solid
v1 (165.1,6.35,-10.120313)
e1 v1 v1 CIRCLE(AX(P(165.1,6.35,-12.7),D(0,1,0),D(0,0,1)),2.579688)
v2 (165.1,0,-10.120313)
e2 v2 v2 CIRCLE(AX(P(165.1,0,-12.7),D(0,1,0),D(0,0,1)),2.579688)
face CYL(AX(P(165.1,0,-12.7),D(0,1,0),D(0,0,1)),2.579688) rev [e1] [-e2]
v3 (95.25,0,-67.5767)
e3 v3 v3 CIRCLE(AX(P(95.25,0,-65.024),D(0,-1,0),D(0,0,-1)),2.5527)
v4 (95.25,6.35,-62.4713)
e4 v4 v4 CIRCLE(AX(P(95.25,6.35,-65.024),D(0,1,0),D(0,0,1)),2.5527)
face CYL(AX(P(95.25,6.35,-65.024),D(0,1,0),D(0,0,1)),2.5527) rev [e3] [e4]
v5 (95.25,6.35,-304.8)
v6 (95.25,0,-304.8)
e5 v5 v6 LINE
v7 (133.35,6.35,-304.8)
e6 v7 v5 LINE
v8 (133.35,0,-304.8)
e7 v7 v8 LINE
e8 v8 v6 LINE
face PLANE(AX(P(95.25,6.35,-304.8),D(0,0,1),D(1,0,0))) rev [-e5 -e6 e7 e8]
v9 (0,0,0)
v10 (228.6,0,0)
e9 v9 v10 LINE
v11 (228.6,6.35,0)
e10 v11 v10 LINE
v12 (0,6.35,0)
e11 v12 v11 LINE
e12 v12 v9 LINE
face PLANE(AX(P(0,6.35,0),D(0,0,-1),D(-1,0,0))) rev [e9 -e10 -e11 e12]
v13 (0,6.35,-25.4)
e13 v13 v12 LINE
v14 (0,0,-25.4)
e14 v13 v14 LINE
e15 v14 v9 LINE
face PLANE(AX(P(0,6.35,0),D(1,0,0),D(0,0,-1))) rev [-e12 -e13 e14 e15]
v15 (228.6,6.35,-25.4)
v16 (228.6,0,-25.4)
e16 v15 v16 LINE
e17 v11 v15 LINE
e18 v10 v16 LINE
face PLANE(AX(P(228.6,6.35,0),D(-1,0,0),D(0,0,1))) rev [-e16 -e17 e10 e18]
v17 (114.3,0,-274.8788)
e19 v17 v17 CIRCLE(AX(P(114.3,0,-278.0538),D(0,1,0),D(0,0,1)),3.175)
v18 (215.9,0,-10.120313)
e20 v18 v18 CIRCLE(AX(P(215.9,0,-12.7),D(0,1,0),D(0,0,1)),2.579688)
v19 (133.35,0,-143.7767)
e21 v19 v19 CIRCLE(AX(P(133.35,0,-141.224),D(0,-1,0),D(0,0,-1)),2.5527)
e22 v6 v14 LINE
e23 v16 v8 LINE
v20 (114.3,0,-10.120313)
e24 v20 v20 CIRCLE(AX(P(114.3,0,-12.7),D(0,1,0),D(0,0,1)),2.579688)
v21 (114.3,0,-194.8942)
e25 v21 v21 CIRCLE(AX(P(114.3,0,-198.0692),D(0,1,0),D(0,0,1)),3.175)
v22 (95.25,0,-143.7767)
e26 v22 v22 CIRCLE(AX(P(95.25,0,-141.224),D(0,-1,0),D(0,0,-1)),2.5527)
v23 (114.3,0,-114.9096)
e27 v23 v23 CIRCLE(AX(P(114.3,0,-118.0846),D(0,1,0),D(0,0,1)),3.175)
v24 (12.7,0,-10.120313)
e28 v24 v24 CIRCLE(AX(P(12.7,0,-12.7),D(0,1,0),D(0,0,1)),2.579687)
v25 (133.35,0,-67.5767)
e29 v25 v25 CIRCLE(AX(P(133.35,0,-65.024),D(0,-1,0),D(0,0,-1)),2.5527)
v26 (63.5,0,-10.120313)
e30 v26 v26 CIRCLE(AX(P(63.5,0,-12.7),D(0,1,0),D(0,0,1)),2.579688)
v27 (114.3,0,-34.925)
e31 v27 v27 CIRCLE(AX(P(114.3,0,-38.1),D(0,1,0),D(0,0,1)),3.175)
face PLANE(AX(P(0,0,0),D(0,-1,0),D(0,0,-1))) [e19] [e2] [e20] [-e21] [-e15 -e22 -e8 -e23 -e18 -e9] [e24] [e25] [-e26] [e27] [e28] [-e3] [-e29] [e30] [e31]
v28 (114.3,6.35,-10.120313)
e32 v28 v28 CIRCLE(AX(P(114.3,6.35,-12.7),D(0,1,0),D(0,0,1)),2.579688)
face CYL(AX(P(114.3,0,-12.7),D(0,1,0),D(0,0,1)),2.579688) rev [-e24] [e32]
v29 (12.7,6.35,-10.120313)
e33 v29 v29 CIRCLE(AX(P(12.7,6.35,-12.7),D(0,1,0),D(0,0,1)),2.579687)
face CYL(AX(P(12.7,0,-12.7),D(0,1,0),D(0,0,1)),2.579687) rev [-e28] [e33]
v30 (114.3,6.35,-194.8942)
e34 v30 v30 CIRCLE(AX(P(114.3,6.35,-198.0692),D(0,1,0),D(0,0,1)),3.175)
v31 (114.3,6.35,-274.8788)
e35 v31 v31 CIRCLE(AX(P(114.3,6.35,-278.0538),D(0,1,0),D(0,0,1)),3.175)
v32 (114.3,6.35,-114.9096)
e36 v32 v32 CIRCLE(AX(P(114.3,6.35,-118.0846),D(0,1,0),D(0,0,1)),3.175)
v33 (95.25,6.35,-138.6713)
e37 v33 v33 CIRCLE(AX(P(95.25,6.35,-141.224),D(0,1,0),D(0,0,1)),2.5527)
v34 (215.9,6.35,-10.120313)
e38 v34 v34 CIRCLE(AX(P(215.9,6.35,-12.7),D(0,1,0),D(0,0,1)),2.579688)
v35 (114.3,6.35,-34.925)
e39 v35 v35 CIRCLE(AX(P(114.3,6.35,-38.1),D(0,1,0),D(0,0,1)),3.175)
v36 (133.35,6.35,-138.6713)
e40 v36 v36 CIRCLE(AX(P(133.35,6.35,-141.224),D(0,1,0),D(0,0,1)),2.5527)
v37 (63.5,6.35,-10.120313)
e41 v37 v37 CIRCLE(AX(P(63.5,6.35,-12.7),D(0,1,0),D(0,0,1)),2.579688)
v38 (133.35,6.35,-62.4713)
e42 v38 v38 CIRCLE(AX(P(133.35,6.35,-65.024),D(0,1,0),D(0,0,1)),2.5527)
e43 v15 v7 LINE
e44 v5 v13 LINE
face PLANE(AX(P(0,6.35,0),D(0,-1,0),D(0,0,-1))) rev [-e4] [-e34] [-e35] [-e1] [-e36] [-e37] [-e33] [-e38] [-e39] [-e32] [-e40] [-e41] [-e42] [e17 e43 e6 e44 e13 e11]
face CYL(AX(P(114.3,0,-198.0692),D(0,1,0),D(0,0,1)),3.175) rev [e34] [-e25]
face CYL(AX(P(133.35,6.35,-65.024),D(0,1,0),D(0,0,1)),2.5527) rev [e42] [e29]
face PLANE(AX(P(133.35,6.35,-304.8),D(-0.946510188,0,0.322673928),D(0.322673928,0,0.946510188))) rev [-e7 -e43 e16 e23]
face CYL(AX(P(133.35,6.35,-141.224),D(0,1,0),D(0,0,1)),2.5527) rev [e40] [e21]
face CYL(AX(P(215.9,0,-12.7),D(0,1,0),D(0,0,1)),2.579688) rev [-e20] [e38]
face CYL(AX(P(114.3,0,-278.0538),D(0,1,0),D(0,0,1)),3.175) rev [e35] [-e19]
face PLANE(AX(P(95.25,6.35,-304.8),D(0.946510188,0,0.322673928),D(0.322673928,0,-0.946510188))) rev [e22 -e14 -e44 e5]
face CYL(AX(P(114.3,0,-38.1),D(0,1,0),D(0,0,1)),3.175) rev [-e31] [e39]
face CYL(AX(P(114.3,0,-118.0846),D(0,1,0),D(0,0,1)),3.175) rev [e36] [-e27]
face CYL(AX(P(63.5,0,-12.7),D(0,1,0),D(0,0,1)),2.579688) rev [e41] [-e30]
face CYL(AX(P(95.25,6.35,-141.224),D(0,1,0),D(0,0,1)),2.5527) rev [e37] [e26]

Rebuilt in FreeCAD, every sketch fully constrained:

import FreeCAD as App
import Part
import Sketcher

V = App.Vector
Q = App.Units.Quantity


def add_polygon(sketch, points):
    """Adds a closed chain of lines whose ends are joined by coincident constraints."""
    first, n = sketch.GeometryCount, len(points)
    for a, b in zip(points, points[1:] + points[:1]):
        sketch.addGeometry(Part.LineSegment(App.Vector(*a, 0), App.Vector(*b, 0)), False)
    for i in range(n):
        sketch.addConstraint(Sketcher.Constraint("Coincident", first + i, 2, first + (i + 1) % n, 1))

doc = App.newDocument("Part")
body = doc.addObject("PartDesign::Body", "Body")

sketch1 = body.newObject("Sketcher::SketchObject", "Sketch")
sketch1.AttachmentSupport = (doc.getObject("XZ_Plane"), [""])
sketch1.MapMode = "FlatFace"
add_polygon(sketch1, [(0, 0), (228.6, 0), (228.6, -25.4), (133.35, -304.8), (95.25, -304.8), (0, -25.4)])
sketch1.addConstraint([
    Sketcher.Constraint("Horizontal", 0),
    Sketcher.Constraint("Vertical", 1),
    Sketcher.Constraint("Horizontal", 3),
    Sketcher.Constraint("Vertical", 5),
    Sketcher.Constraint("Coincident", 5, 2, -1, 1),
    Sketcher.Constraint("Horizontal", 1, 2, 4, 2),
    Sketcher.Constraint("Equal", 2, 4),
    Sketcher.Constraint("DistanceX", 0, 1, 0, 2, Q("9 in")),
    Sketcher.Constraint("DistanceY", 1, 2, 1, 1, Q("1 in")),
    Sketcher.Constraint("DistanceX", 3, 2, 3, 1, Q("1.5 in")),
    Sketcher.Constraint("DistanceY", 2, 2, -1, 1, Q("12 in")),
])
pad1 = body.newObject("PartDesign::Pad", "Pad")
pad1.Profile = sketch1
pad1.Length = Q("0.25 in")
pad1.Reversed = True

sketch2 = body.newObject("Sketcher::SketchObject", "Sketch001")
sketch2.AttachmentSupport = (doc.getObject("XZ_Plane"), [""])
sketch2.MapMode = "FlatFace"
sketch2.AttachmentOffset = App.Placement(V(0, 0, -0.25 * 25.4), App.Rotation())
sketch2.addGeometry([
    Part.Circle(V(165.1, -12.7, 0), V(0, 0, 1), 2.579687),
    Part.Circle(V(114.3, -12.7, 0), V(0, 0, 1), 2.579687),
    Part.Circle(V(63.5, -12.7, 0), V(0, 0, 1), 2.579687),
    Part.Circle(V(114.3, -38.1, 0), V(0, 0, 1), 3.175),
    Part.Circle(V(114.3, -118.0846, 0), V(0, 0, 1), 3.175),
    Part.Circle(V(114.3, -198.0692, 0), V(0, 0, 1), 3.175),
    Part.Circle(V(114.3, -278.0538, 0), V(0, 0, 1), 3.175),
    Part.Circle(V(12.7, -12.7, 0), V(0, 0, 1), 2.579687),
    Part.Circle(V(215.9, -12.7, 0), V(0, 0, 1), 2.579687),
], False)
sketch2.addConstraint([
    Sketcher.Constraint("Equal", 0, 1),
    Sketcher.Constraint("Equal", 1, 2),
    Sketcher.Constraint("Equal", 3, 4),
    Sketcher.Constraint("Equal", 4, 5),
    Sketcher.Constraint("Equal", 5, 6),
    Sketcher.Constraint("Equal", 2, 7),
    Sketcher.Constraint("Equal", 7, 8),
    Sketcher.Constraint("Horizontal", 0, 3, 1, 3),
    Sketcher.Constraint("Horizontal", 1, 3, 2, 3),
    Sketcher.Constraint("Horizontal", 2, 3, 7, 3),
    Sketcher.Constraint("Horizontal", 7, 3, 8, 3),
    Sketcher.Constraint("Vertical", 1, 3, 3, 3),
    Sketcher.Constraint("Vertical", 3, 3, 4, 3),
    Sketcher.Constraint("Vertical", 4, 3, 5, 3),
    Sketcher.Constraint("Vertical", 5, 3, 6, 3),
    Sketcher.Constraint("Diameter", 3, Q("0.25 in")),
    Sketcher.Constraint("Diameter", 0, Q("0.203125 in")),
    Sketcher.Constraint("DistanceX", 1, 3, 0, 3, Q("2 in")),
    Sketcher.Constraint("DistanceX", 2, 3, 1, 3, Q("2 in")),
    Sketcher.Constraint("DistanceY", 3, 3, 1, 3, Q("1 in")),
    Sketcher.Constraint("DistanceX", 7, 3, 2, 3, Q("2 in")),
    Sketcher.Constraint("DistanceX", 0, 3, 8, 3, Q("2 in")),
    Sketcher.Constraint("DistanceX", -1, 1, 0, 3, Q("6.5 in")),
    Sketcher.Constraint("DistanceY", 0, 3, -1, 1, Q("0.5 in")),
    Sketcher.Constraint("DistanceY", 4, 3, -1, 1, Q("4.649 in")),
    Sketcher.Constraint("DistanceY", 5, 3, -1, 1, Q("7.798 in")),
    Sketcher.Constraint("DistanceY", 6, 3, -1, 1, Q("10.947 in")),
])
pocket1 = body.newObject("PartDesign::Pocket", "Pocket")
pocket1.Profile = sketch2
pocket1.Type = "ThroughAll"
pocket1.Reversed = True

sketch3 = body.newObject("Sketcher::SketchObject", "Sketch002")
sketch3.AttachmentSupport = (doc.getObject("XZ_Plane"), [""])
sketch3.MapMode = "FlatFace"
sketch3.AttachmentOffset = App.Placement(V(0, 0, -0.25 * 25.4), App.Rotation())
sketch3.addGeometry([
    Part.Circle(V(133.35, -65.024, 0), V(0, 0, 1), 1.905),
    Part.Circle(V(95.25, -65.024, 0), V(0, 0, 1), 1.905),
    Part.Circle(V(133.35, -141.224, 0), V(0, 0, 1), 1.905),
    Part.Circle(V(95.25, -141.224, 0), V(0, 0, 1), 1.905),
], False)
sketch3.addConstraint([
    Sketcher.Constraint("Equal", 0, 1),
    Sketcher.Constraint("Equal", 1, 2),
    Sketcher.Constraint("Equal", 2, 3),
    Sketcher.Constraint("Horizontal", 0, 3, 1, 3),
    Sketcher.Constraint("Horizontal", 2, 3, 3, 3),
    Sketcher.Constraint("Vertical", 0, 3, 2, 3),
    Sketcher.Constraint("Vertical", 1, 3, 3, 3),
    Sketcher.Constraint("Diameter", 0, Q("0.15 in")),
    Sketcher.Constraint("DistanceY", 2, 3, 0, 3, Q("3 in")),
    Sketcher.Constraint("DistanceX", 1, 3, 0, 3, Q("1.5 in")),
    Sketcher.Constraint("DistanceX", -1, 1, 0, 3, Q("5.25 in")),
    Sketcher.Constraint("DistanceY", 0, 3, -1, 1, Q("2.56 in")),
])
pocket2 = body.newObject("PartDesign::Pocket", "Pocket001")
pocket2.Profile = sketch3
pocket2.Type = "ThroughAll"
pocket2.Reversed = True

sketch4 = body.newObject("Sketcher::SketchObject", "Sketch003")
sketch4.AttachmentSupport = (doc.getObject("XZ_Plane"), [""])
sketch4.MapMode = "FlatFace"
sketch4.AttachmentOffset = App.Placement(V(0, 0, -0.25 * 25.4), App.Rotation())
sketch4.addGeometry([
    Part.Circle(V(95.25, -141.224, 0), V(0, 0, 1), 2.5527),
    Part.Circle(V(133.35, -141.224, 0), V(0, 0, 1), 2.5527),
    Part.Circle(V(133.35, -65.024, 0), V(0, 0, 1), 2.5527),
    Part.Circle(V(95.25, -65.024, 0), V(0, 0, 1), 2.5527),
], False)
sketch4.addConstraint([
    Sketcher.Constraint("Equal", 0, 1),
    Sketcher.Constraint("Equal", 1, 2),
    Sketcher.Constraint("Equal", 2, 3),
    Sketcher.Constraint("Horizontal", 0, 3, 1, 3),
    Sketcher.Constraint("Horizontal", 2, 3, 3, 3),
    Sketcher.Constraint("Vertical", 1, 3, 2, 3),
    Sketcher.Constraint("Vertical", 0, 3, 3, 3),
    Sketcher.Constraint("Diameter", 0, Q("0.201 in")),
    Sketcher.Constraint("DistanceY", 1, 3, 2, 3, Q("3 in")),
    Sketcher.Constraint("DistanceX", 0, 3, 1, 3, Q("1.5 in")),
    Sketcher.Constraint("DistanceX", -1, 1, 0, 3, Q("3.75 in")),
    Sketcher.Constraint("DistanceY", 0, 3, -1, 1, Q("5.56 in")),
])
doc.recompute()
hole = body.newObject("PartDesign::Hole", "Hole")
hole.Profile = sketch4
hole.ThreadType = "None"
hole.Diameter = Q("0.201 in")
hole.DepthType = "Dimension"
hole.Depth = Q("0.65 in")
hole.DrillPoint = "Angled"
hole.DrillPointAngle = 118
hole.Reversed = True

doc.recompute()
